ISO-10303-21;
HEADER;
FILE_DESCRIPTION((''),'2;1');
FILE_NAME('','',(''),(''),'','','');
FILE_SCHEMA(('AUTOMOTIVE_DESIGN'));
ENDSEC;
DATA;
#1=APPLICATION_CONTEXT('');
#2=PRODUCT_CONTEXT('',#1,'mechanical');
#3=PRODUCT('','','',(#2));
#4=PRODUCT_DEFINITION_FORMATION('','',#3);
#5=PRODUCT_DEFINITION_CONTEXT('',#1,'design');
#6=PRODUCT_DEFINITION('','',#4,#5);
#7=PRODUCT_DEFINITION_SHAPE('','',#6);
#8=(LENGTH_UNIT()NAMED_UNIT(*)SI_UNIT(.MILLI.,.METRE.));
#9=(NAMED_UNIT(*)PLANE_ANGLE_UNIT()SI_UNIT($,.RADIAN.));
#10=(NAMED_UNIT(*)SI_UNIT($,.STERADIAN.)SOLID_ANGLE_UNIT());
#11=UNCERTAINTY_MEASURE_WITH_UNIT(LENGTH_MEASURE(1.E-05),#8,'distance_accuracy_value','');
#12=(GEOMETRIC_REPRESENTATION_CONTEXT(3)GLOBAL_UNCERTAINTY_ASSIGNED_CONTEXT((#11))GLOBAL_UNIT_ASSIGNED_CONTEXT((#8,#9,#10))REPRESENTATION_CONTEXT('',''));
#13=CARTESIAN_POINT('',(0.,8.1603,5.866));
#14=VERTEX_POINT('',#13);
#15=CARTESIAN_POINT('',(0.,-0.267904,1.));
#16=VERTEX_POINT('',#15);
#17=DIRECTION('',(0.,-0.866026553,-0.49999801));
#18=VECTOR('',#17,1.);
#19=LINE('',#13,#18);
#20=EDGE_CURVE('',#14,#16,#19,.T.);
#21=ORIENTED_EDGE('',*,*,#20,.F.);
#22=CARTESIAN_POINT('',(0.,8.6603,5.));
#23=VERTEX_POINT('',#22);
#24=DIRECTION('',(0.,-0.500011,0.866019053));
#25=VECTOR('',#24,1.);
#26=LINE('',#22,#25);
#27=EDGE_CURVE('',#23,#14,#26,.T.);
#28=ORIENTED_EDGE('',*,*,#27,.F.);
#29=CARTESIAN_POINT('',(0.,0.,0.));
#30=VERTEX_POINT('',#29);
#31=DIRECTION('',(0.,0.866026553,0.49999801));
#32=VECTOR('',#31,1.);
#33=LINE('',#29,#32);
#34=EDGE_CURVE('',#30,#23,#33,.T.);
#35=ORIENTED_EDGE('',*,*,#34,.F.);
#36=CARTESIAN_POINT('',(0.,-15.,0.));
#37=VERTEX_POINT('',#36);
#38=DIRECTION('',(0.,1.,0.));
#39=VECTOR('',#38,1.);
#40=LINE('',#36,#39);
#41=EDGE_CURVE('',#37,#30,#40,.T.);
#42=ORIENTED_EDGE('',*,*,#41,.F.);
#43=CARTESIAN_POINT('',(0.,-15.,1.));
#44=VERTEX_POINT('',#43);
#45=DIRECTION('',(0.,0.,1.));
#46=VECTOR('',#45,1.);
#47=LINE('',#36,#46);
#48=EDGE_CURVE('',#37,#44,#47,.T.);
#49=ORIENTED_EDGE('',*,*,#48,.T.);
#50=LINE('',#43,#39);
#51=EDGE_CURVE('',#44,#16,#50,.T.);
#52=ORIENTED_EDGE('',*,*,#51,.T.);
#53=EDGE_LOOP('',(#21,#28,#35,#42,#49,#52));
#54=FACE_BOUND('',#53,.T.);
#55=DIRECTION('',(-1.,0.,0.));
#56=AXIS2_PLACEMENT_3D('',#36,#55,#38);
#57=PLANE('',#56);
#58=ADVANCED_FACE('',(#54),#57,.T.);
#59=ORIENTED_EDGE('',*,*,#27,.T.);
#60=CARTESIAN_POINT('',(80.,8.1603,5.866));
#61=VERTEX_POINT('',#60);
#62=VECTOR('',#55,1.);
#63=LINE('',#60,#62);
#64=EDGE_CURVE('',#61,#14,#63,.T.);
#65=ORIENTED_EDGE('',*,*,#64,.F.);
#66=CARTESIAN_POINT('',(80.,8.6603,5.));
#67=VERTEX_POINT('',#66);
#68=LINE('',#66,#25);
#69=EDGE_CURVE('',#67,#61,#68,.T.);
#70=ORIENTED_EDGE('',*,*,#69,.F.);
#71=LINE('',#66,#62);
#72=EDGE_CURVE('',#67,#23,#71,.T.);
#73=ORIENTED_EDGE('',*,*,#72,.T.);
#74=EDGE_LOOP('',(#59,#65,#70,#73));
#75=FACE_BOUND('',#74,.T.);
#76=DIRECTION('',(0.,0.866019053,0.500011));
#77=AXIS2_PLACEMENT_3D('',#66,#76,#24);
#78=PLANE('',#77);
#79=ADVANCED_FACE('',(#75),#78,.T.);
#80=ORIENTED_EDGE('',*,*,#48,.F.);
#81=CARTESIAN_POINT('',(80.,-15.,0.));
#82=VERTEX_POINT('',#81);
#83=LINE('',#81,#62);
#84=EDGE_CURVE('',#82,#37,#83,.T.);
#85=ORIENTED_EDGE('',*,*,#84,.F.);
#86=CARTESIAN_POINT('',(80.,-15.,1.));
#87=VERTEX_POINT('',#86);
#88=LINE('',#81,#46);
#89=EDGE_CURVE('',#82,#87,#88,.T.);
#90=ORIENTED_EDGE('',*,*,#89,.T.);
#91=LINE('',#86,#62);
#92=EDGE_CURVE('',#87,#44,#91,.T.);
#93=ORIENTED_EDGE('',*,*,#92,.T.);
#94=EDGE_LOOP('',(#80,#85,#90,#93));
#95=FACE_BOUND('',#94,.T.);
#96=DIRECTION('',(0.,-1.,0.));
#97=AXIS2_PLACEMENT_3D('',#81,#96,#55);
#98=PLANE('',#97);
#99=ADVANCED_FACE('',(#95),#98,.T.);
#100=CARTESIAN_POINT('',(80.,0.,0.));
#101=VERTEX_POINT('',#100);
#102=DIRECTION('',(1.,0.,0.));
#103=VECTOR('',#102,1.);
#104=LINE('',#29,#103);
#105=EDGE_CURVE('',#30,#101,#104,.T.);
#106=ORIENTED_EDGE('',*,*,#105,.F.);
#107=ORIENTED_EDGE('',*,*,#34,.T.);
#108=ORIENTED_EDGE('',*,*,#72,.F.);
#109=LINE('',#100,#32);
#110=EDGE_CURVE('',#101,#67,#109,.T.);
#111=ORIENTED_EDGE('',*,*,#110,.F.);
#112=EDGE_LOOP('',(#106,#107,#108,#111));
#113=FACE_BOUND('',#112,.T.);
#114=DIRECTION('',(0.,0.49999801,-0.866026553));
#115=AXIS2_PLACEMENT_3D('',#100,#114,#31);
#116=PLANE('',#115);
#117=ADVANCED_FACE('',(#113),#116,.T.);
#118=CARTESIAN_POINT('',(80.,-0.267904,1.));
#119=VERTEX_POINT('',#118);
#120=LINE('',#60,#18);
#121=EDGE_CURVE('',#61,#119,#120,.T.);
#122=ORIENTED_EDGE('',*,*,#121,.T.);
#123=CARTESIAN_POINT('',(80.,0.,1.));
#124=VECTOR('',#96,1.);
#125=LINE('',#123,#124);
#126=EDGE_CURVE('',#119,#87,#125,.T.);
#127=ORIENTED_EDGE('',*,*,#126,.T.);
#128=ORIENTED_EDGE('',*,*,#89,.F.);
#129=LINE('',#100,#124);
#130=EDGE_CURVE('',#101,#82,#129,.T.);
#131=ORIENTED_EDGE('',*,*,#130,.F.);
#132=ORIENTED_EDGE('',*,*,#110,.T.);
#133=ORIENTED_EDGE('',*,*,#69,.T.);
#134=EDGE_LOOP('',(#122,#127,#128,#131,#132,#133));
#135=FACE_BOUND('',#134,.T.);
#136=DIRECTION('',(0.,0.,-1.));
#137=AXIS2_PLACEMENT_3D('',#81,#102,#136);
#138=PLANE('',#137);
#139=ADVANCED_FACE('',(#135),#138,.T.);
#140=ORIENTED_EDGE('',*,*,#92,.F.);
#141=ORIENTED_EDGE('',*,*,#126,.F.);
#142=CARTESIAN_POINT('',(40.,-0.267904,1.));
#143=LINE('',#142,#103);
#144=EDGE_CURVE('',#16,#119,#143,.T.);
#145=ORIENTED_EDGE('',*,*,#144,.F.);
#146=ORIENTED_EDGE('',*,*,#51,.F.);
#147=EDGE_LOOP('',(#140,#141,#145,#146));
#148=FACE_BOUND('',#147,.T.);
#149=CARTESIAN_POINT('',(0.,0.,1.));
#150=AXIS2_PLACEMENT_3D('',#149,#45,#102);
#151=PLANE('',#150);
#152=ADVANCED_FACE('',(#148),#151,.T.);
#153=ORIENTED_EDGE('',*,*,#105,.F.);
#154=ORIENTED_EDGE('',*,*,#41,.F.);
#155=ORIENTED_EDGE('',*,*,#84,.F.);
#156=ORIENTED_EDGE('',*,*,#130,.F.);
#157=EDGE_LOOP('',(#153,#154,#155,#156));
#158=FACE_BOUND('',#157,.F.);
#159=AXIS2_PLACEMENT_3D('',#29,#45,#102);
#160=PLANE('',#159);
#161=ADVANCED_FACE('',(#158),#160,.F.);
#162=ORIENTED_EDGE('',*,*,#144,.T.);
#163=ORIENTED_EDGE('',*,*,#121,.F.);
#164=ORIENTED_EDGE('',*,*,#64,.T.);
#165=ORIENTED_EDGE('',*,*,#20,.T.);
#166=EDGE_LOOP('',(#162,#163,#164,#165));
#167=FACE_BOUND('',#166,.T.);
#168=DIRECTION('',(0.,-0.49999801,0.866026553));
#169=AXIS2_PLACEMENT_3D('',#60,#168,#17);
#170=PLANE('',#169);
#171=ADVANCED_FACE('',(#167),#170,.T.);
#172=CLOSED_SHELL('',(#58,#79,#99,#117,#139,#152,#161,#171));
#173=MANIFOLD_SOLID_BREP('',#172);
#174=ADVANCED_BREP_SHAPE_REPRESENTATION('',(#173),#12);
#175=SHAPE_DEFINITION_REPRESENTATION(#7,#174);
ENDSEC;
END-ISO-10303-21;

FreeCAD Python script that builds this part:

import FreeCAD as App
import Part
import Sketcher
Q = App.Units.Quantity

doc = App.newDocument("Part")
body = doc.addObject("PartDesign::Body", "Body")

sketch1 = body.newObject("Sketcher::SketchObject", "Sketch")
sketch1.AttachmentSupport = (doc.getObject("XY_Plane"), [""])
sketch1.MapMode = "FlatFace"
sketch1.addGeometry([
    Part.LineSegment(App.Vector(80, 0, 0), App.Vector(0, 0, 0)),
    Part.LineSegment(App.Vector(0, 0, 0), App.Vector(0, -15, 0)),
    Part.LineSegment(App.Vector(0, -15, 0), App.Vector(80, -15, 0)),
    Part.LineSegment(App.Vector(80, -15, 0), App.Vector(80, 0, 0)),
], False)
sketch1.addConstraint([
    Sketcher.Constraint("Coincident", 0, 2, 1, 1),
    Sketcher.Constraint("Coincident", 1, 2, 2, 1),
    Sketcher.Constraint("Coincident", 2, 2, 3, 1),
    Sketcher.Constraint("Coincident", 3, 2, 0, 1),
    Sketcher.Constraint("Horizontal", 0),
    Sketcher.Constraint("Vertical", 1),
    Sketcher.Constraint("Horizontal", 2),
    Sketcher.Constraint("Vertical", 3),
    Sketcher.Constraint("Coincident", 0, 2, -1, 1),
    Sketcher.Constraint("DistanceX", 0, 2, 0, 1, 80.0),
    Sketcher.Constraint("DistanceY", 1, 2, 1, 1, 15.0),
])
pad1 = body.newObject("PartDesign::Pad", "Pad")
pad1.Profile = sketch1
pad1.Length = 1

sketch2 = body.newObject("Sketcher::SketchObject", "Sketch001")
sketch2.AttachmentSupport = (doc.getObject("YZ_Plane"), [""])
sketch2.MapMode = "FlatFace"
sketch2.AttachmentOffset = App.Placement(App.Vector(0, 0, 80), App.Rotation())
sketch2.addGeometry([
    Part.LineSegment(App.Vector(-0.5, 0.866, 0), App.Vector(0, 0, 0)),
    Part.LineSegment(App.Vector(0, 0, 0), App.Vector(8.6603, 5, 0)),
    Part.LineSegment(App.Vector(8.6603, 5, 0), App.Vector(8.1603, 5.866, 0)),
    Part.LineSegment(App.Vector(8.1603, 5.866, 0), App.Vector(-0.5, 0.866, 0)),
], False)
sketch2.addConstraint([
    Sketcher.Constraint("Coincident", 0, 2, 1, 1),
    Sketcher.Constraint("Coincident", 1, 2, 2, 1),
    Sketcher.Constraint("Coincident", 2, 2, 3, 1),
    Sketcher.Constraint("Coincident", 3, 2, 0, 1),
    Sketcher.Constraint("Coincident", 0, 2, -1, 1),
    Sketcher.Constraint("Perpendicular", 0, 1),
    Sketcher.Constraint("Perpendicular", 1, 2),
    Sketcher.Constraint("Perpendicular", 2, 3),
    Sketcher.Constraint("Distance", 0, 1.0),
    Sketcher.Constraint("Distance", 1, 10.0),
    Sketcher.Constraint("Angle", 0, Q("-59.9993 deg")),
])
pad2 = body.newObject("PartDesign::Pad", "Pad001")
pad2.Profile = sketch2
pad2.Length = 80
pad2.Reversed = True

doc.recompute()
